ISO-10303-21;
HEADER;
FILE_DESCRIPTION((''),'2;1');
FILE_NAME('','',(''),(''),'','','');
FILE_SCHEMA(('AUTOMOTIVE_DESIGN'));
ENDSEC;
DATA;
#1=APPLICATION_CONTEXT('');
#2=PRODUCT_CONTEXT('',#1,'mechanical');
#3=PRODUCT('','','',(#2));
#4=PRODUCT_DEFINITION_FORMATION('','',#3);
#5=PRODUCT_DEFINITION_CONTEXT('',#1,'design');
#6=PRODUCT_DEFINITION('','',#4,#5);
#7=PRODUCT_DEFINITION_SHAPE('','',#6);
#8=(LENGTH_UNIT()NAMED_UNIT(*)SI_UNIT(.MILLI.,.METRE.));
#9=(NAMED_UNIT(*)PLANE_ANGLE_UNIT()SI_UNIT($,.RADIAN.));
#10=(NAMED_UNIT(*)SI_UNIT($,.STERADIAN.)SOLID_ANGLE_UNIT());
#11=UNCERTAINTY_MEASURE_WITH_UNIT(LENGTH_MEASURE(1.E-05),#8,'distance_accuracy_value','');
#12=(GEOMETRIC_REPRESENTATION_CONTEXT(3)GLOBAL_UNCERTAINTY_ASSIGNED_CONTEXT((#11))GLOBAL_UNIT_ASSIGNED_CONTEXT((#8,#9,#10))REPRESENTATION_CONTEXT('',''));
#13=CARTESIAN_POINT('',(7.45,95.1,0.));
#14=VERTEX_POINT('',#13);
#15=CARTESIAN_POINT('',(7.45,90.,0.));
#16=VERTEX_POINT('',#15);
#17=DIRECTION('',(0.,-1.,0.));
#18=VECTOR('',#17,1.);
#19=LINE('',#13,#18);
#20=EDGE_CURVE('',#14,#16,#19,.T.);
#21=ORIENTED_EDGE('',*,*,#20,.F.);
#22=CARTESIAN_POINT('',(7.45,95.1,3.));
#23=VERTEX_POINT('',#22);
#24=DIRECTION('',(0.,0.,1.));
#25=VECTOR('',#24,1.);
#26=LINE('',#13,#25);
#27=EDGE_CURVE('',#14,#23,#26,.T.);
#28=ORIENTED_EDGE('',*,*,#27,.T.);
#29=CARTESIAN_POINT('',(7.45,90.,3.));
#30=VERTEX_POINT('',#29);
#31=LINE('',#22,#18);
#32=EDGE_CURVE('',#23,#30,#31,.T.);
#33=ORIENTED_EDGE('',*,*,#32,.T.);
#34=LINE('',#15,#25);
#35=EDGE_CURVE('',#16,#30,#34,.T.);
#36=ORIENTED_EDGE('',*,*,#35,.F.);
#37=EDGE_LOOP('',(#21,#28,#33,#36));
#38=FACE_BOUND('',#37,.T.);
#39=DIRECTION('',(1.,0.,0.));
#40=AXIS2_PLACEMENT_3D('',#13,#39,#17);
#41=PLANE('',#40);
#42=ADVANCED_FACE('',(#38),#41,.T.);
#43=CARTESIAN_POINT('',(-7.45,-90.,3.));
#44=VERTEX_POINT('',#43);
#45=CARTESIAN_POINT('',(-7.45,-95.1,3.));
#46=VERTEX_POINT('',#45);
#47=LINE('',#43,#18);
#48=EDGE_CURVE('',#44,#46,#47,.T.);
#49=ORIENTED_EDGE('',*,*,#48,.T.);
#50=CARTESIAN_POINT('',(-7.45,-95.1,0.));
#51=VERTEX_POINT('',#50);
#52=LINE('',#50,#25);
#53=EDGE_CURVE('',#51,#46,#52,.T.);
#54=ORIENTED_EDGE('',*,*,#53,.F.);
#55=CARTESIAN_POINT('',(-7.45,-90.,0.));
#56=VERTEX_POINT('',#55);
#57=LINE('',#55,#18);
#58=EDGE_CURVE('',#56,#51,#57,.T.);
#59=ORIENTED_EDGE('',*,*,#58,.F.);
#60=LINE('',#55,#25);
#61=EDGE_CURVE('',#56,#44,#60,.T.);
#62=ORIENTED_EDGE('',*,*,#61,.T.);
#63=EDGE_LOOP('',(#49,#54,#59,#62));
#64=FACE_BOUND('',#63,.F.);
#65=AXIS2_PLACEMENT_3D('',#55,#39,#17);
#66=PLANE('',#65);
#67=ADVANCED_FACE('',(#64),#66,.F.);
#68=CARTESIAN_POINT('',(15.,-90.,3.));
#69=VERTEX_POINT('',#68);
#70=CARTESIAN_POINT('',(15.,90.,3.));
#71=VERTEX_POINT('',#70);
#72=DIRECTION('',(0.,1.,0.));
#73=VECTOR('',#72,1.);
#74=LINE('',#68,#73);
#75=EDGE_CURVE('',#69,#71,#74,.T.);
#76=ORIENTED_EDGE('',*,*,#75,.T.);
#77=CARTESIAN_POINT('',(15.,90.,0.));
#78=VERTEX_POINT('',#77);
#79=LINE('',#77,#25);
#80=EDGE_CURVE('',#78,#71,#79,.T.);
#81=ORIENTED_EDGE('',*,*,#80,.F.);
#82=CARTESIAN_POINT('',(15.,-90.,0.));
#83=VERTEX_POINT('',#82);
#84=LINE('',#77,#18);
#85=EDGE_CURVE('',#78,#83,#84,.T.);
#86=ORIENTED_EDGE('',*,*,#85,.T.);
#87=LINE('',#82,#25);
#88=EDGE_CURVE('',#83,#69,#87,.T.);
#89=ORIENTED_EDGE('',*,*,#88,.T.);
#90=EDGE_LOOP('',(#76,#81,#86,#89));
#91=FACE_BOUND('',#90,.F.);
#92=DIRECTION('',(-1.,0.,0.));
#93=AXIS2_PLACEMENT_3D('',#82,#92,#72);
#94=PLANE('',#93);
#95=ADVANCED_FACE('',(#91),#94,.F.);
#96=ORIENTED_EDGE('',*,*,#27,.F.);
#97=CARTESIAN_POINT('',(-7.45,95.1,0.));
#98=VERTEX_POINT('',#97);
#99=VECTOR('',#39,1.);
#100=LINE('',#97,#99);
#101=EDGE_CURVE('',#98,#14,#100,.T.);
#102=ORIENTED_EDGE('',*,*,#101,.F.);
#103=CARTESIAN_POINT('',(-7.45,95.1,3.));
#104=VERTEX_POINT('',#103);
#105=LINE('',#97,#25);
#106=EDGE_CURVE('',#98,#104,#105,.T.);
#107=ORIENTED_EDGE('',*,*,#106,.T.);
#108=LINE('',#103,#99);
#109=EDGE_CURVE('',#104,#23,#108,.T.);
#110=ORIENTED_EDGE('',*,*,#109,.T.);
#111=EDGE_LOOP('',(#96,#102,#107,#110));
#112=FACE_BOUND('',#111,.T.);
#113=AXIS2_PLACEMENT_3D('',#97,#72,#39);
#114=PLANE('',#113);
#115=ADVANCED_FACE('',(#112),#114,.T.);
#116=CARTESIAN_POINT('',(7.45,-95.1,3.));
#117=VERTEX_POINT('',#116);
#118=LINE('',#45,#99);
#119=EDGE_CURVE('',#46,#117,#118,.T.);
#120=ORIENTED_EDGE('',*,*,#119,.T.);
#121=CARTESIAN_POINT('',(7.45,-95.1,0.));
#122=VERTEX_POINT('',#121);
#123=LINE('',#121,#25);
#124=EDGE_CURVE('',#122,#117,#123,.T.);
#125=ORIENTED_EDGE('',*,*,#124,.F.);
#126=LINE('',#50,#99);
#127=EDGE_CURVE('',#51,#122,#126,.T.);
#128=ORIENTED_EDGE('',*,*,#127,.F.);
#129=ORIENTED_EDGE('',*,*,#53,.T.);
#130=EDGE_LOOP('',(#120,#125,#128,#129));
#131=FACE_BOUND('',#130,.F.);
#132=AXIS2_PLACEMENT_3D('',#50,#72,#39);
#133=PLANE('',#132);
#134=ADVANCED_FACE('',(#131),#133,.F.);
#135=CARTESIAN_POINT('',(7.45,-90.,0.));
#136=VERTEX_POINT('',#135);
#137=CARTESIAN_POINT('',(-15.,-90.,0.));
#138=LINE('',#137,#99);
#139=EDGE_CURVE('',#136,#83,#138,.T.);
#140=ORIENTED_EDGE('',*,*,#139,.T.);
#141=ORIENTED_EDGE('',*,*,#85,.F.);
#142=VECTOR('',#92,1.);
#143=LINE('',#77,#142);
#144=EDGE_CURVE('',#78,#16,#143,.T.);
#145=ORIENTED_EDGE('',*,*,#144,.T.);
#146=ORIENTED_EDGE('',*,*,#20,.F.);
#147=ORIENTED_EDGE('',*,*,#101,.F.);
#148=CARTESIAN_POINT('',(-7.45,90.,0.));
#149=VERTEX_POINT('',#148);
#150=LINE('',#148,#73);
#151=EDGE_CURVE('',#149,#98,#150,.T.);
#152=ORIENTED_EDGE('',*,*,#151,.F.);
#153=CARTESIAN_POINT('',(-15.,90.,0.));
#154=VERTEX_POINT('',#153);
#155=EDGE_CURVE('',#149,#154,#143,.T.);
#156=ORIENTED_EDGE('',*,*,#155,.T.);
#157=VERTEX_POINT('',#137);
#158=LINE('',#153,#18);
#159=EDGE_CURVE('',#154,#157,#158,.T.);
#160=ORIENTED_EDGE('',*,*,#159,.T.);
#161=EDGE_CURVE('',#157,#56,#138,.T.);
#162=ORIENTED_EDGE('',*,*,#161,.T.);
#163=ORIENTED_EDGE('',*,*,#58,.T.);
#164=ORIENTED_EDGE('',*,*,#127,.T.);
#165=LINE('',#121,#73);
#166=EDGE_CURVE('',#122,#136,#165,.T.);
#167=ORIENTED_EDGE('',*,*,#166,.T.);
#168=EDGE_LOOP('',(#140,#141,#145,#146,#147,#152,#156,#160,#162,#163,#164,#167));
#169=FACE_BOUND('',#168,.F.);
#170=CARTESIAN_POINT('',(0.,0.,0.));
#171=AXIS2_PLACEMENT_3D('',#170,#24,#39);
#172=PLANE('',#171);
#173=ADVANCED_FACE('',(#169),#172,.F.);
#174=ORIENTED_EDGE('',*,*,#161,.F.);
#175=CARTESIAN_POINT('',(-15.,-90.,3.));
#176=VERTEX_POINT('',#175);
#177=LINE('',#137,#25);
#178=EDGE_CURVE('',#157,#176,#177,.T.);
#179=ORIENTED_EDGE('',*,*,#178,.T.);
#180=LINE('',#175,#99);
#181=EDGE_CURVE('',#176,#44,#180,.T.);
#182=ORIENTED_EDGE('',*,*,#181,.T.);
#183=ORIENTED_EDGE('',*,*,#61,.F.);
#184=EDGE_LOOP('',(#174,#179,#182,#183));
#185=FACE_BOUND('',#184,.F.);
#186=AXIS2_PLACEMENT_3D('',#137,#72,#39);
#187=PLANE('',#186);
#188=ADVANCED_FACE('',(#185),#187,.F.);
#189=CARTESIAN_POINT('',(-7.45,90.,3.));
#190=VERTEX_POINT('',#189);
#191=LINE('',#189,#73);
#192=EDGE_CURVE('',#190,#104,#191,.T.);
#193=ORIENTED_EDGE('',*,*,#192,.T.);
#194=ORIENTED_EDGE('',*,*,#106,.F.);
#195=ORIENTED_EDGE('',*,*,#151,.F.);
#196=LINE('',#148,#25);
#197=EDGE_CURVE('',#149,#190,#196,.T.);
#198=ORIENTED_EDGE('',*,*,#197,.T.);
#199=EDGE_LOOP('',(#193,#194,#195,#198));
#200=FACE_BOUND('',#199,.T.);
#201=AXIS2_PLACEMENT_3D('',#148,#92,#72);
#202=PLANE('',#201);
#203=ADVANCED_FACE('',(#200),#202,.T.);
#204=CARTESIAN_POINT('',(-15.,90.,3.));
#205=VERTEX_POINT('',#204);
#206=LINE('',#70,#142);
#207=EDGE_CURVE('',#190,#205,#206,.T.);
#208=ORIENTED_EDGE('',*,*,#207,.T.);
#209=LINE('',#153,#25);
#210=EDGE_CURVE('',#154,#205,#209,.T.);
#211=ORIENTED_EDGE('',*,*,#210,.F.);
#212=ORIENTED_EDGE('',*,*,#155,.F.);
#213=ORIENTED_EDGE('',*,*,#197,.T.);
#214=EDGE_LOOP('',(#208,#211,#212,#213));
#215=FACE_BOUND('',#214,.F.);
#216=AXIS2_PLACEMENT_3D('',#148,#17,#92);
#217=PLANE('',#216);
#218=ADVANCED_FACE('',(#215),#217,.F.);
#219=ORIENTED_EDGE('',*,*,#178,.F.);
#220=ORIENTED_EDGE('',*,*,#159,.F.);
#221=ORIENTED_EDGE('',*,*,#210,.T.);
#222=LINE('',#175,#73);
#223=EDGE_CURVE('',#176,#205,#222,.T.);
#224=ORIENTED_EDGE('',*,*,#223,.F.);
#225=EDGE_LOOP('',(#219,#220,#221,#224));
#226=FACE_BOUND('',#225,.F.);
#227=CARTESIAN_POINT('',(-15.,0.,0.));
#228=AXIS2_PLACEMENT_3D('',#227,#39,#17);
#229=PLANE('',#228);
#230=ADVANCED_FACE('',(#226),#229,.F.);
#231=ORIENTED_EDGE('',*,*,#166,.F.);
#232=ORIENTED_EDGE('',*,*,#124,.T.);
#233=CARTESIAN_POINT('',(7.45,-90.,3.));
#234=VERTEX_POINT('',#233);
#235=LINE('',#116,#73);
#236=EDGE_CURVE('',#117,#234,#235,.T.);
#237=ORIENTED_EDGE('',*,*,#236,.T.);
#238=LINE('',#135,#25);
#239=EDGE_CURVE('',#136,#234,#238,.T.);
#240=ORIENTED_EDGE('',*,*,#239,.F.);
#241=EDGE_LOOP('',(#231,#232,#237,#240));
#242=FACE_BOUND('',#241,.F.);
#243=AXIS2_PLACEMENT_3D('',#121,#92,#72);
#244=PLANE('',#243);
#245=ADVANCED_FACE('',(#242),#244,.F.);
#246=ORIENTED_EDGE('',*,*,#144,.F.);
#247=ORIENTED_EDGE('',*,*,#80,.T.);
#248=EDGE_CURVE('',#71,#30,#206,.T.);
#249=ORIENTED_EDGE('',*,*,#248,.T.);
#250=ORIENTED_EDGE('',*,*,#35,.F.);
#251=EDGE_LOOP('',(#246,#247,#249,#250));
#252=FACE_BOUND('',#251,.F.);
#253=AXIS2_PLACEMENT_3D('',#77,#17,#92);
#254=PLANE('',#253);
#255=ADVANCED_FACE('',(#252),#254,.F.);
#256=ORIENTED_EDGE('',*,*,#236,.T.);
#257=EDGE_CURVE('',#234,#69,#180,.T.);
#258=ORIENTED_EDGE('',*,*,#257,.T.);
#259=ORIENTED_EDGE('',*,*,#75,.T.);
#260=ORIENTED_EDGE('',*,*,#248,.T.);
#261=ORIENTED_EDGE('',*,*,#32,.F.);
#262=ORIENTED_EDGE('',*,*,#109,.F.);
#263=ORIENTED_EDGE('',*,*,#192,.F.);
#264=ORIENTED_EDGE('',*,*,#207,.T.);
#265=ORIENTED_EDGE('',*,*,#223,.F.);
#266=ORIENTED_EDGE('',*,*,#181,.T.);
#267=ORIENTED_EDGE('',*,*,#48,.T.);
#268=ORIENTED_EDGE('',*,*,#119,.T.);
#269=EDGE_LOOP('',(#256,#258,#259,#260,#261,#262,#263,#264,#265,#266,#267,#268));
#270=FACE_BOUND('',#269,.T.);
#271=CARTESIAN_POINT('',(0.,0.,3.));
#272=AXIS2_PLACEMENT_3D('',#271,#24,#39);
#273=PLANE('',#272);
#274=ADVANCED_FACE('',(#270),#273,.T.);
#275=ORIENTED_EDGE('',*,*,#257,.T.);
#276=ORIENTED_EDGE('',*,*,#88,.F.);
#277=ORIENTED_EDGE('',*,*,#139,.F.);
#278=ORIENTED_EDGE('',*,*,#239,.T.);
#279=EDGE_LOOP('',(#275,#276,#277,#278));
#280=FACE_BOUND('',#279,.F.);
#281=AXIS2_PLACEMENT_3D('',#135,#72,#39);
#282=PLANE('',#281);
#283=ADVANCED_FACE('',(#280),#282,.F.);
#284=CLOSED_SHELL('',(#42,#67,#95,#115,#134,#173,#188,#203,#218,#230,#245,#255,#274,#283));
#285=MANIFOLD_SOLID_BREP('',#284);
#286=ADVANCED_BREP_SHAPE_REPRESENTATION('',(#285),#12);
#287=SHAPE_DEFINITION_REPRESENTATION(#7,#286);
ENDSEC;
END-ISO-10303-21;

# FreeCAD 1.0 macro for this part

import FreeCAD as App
import Part
import Sketcher

V = App.Vector

doc = App.newDocument("Part")
body = doc.addObject("PartDesign::Body", "Body")

# Sketch on XY plane
sketch1 = body.newObject("Sketcher::SketchObject", "Sketch")
sketch1.AttachmentSupport = (doc.getObject("XY_Plane"), [""])
sketch1.MapMode = "FlatFace"
sketch1.addGeometry(Part.LineSegment(V(-15, -90, 0), V(-7, -90, 0)), False)
sketch1.addGeometry(Part.LineSegment(V(-7, -90, 0), V(-7, -95, 0)), False)
sketch1.addGeometry(Part.LineSegment(V(-7, -95, 0), V(7, -95, 0)), False)
sketch1.addGeometry(Part.LineSegment(V(7, -95, 0), V(7, -90, 0)), False)
sketch1.addGeometry(Part.LineSegment(V(7, -90, 0), V(15, -90, 0)), False)
sketch1.addGeometry(Part.LineSegment(V(15, -90, 0), V(15, 90, 0)), False)
sketch1.addGeometry(Part.LineSegment(V(15, 90, 0), V(7, 90, 0)), False)
sketch1.addGeometry(Part.LineSegment(V(7, 90, 0), V(7, 95, 0)), False)
sketch1.addGeometry(Part.LineSegment(V(7, 95, 0), V(-7, 95, 0)), False)
sketch1.addGeometry(Part.LineSegment(V(-7, 95, 0), V(-7, 90, 0)), False)
sketch1.addGeometry(Part.LineSegment(V(-7, 90, 0), V(-15, 90, 0)), False)
sketch1.addGeometry(Part.LineSegment(V(-15, 90, 0), V(-15, -90, 0)), False)
sketch1.addConstraint(Sketcher.Constraint("Coincident", 0, 2, 1, 1))
sketch1.addConstraint(Sketcher.Constraint("Coincident", 1, 2, 2, 1))
sketch1.addConstraint(Sketcher.Constraint("Coincident", 2, 2, 3, 1))
sketch1.addConstraint(Sketcher.Constraint("Coincident", 3, 2, 4, 1))
sketch1.addConstraint(Sketcher.Constraint("Coincident", 4, 2, 5, 1))
sketch1.addConstraint(Sketcher.Constraint("Coincident", 5, 2, 6, 1))
sketch1.addConstraint(Sketcher.Constraint("Coincident", 6, 2, 7, 1))
sketch1.addConstraint(Sketcher.Constraint("Coincident", 7, 2, 8, 1))
sketch1.addConstraint(Sketcher.Constraint("Coincident", 8, 2, 9, 1))
sketch1.addConstraint(Sketcher.Constraint("Coincident", 9, 2, 10, 1))
sketch1.addConstraint(Sketcher.Constraint("Coincident", 10, 2, 11, 1))
sketch1.addConstraint(Sketcher.Constraint("Coincident", 11, 2, 0, 1))
sketch1.addConstraint(Sketcher.Constraint("Horizontal", 0))
sketch1.addConstraint(Sketcher.Constraint("Vertical", 1))
sketch1.addConstraint(Sketcher.Constraint("Horizontal", 2))
sketch1.addConstraint(Sketcher.Constraint("Vertical", 3))
sketch1.addConstraint(Sketcher.Constraint("Horizontal", 4))
sketch1.addConstraint(Sketcher.Constraint("Vertical", 5))
sketch1.addConstraint(Sketcher.Constraint("Horizontal", 6))
sketch1.addConstraint(Sketcher.Constraint("Vertical", 7))
sketch1.addConstraint(Sketcher.Constraint("Horizontal", 8))
sketch1.addConstraint(Sketcher.Constraint("Vertical", 9))
sketch1.addConstraint(Sketcher.Constraint("Horizontal", 10))
sketch1.addConstraint(Sketcher.Constraint("Vertical", 11))
sketch1.addConstraint(Sketcher.Constraint("Symmetric", 0, 2, 6, 2, -1, 1))
sketch1.addConstraint(Sketcher.Constraint("Symmetric", 2, 2, 8, 2, -1, 1))
sketch1.addConstraint(Sketcher.Constraint("Symmetric", 4, 2, 10, 2, -1, 1))
sketch1.addConstraint(Sketcher.Constraint("Symmetric", 0, 2, 3, 2, -2))
sketch1.addConstraint(Sketcher.Constraint("DistanceY", 5, 1, 5, 2, 180.0))
sketch1.addConstraint(Sketcher.Constraint("DistanceX", 2, 1, 2, 2, 14.9))
sketch1.addConstraint(Sketcher.Constraint("DistanceY", 1, 2, 1, 1, 5.1))
sketch1.addConstraint(Sketcher.Constraint("DistanceX", 10, 2, 5, 2, 30.0))
pad1 = body.newObject("PartDesign::Pad", "Pad")
pad1.Profile = sketch1
pad1.Length = 3

doc.recompute()
